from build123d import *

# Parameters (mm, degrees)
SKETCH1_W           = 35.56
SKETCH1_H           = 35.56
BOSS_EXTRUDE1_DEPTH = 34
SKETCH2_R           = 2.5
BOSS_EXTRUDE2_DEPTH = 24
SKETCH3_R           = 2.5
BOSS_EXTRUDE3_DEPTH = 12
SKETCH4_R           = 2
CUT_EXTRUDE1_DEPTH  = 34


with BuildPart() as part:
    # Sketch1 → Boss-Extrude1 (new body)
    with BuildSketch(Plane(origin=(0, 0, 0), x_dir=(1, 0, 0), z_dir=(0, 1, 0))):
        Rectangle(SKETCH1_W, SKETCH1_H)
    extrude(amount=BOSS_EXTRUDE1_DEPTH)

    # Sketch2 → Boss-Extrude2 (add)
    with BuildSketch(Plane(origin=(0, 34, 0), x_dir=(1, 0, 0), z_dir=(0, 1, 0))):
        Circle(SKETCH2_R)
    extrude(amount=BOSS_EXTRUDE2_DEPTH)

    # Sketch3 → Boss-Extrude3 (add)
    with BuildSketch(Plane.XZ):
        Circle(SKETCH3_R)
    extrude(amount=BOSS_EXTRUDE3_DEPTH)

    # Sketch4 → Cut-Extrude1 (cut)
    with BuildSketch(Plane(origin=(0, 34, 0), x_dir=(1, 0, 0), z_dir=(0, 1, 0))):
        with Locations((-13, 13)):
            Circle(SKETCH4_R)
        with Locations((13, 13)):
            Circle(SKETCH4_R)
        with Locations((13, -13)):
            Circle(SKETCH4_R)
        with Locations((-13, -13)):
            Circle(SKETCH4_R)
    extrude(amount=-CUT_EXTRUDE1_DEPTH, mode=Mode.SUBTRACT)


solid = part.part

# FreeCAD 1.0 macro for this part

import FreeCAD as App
import Part
import Sketcher


def add_polygon(sketch, points):
    """Adds a closed chain of lines whose ends are joined by coincident constraints."""
    first, n = sketch.GeometryCount, len(points)
    for a, b in zip(points, points[1:] + points[:1]):
        sketch.addGeometry(Part.LineSegment(App.Vector(*a, 0), App.Vector(*b, 0)), False)
    for i in range(n):
        sketch.addConstraint(Sketcher.Constraint("Coincident", first + i, 2, first + (i + 1) % n, 1))

doc = App.newDocument("Part")
params = doc.addObject("Spreadsheet::Sheet", "Params")
for row, (alias, value) in enumerate([
    ("sketch1_width", "35.56 mm"),
    ("pad1_length", "34 mm"),
    ("sketch2_diameter", "5 mm"),
    ("pad2_length", "24 mm"),
    ("sketch3_diameter", "5 mm"),
    ("pad3_length", "12 mm"),
    ("sketch4_diameter", "4 mm"),
    ("pocket1_length", "34 mm"),
], start=1):
    params.set(f"A{row}", alias)
    params.set(f"B{row}", "=" + value)
    params.setAlias(f"B{row}", alias)

body = doc.addObject("PartDesign::Body", "Body")

sketch1 = doc.addObject("Sketcher::SketchObject", "Sketch")
body.addObject(sketch1)
sketch1.AttachmentSupport = (doc.XZ_Plane, [""])
sketch1.MapMode = "FlatFace"
add_polygon(sketch1, [(-18, -18), (-18, 18), (18, 18), (18, -18)])
sketch1.addConstraint(Sketcher.Constraint("Vertical", 0))
sketch1.addConstraint(Sketcher.Constraint("Horizontal", 1))
sketch1.addConstraint(Sketcher.Constraint("Vertical", 2))
sketch1.addConstraint(Sketcher.Constraint("Horizontal", 3))
sketch1.addConstraint(Sketcher.Constraint("Symmetric", 0, 2, 2, 2, -1, 1))
sketch1.addConstraint(Sketcher.Constraint("Equal", 3, 0))
sketch1.addConstraint(Sketcher.Constraint("DistanceX", 1, 1, 1, 2, 35.56))
sketch1.setExpression("Constraints[10]", "Params.sketch1_width")
pad1 = doc.addObject("PartDesign::Pad", "Pad")
body.addObject(pad1)
pad1.Profile = sketch1
pad1.setExpression("Length", "Params.pad1_length")
pad1.Reversed = True

sketch2 = doc.addObject("Sketcher::SketchObject", "Sketch001")
body.addObject(sketch2)
sketch2.AttachmentSupport = (doc.XZ_Plane, [""])
sketch2.MapMode = "FlatFace"
sketch2.AttachmentOffset = App.Placement(App.Vector(0, 0, -34), App.Rotation())
sketch2.addGeometry(Part.Circle(App.Vector(0, 0, 0), App.Vector(0, 0, 1), 2.5), False)
sketch2.addConstraint(Sketcher.Constraint("Coincident", 0, 3, -1, 1))
sketch2.addConstraint(Sketcher.Constraint("Diameter", 0, 5.0))
sketch2.setExpression("Constraints[1]", "Params.sketch2_diameter")
pad2 = doc.addObject("PartDesign::Pad", "Pad001")
body.addObject(pad2)
pad2.Profile = sketch2
pad2.setExpression("Length", "Params.pad2_length")
pad2.Reversed = True

sketch3 = doc.addObject("Sketcher::SketchObject", "Sketch002")
body.addObject(sketch3)
sketch3.AttachmentSupport = (doc.XZ_Plane, [""])
sketch3.MapMode = "FlatFace"
sketch3.addGeometry(Part.Circle(App.Vector(0, 0, 0), App.Vector(0, 0, 1), 2.5), False)
sketch3.addConstraint(Sketcher.Constraint("Coincident", 0, 3, -1, 1))
sketch3.addConstraint(Sketcher.Constraint("Diameter", 0, 5.0))
sketch3.setExpression("Constraints[1]", "Params.sketch3_diameter")
pad3 = doc.addObject("PartDesign::Pad", "Pad002")
body.addObject(pad3)
pad3.Profile = sketch3
pad3.setExpression("Length", "Params.pad3_length")

sketch4 = doc.addObject("Sketcher::SketchObject", "Sketch003")
body.addObject(sketch4)
sketch4.AttachmentSupport = (doc.XZ_Plane, [""])
sketch4.MapMode = "FlatFace"
sketch4.AttachmentOffset = App.Placement(App.Vector(0, 0, -34), App.Rotation())
sketch4.addGeometry(Part.Circle(App.Vector(-13, -13, 0), App.Vector(0, 0, 1), 2), False)
sketch4.addGeometry(Part.Circle(App.Vector(13, -13, 0), App.Vector(0, 0, 1), 2), False)
sketch4.addGeometry(Part.Circle(App.Vector(13, 13, 0), App.Vector(0, 0, 1), 2), False)
sketch4.addGeometry(Part.Circle(App.Vector(-13, 13, 0), App.Vector(0, 0, 1), 2), False)
sketch4.addConstraint(Sketcher.Constraint("Equal", 0, 1))
sketch4.addConstraint(Sketcher.Constraint("Equal", 1, 2))
sketch4.addConstraint(Sketcher.Constraint("Equal", 2, 3))
sketch4.addConstraint(Sketcher.Constraint("Symmetric", 0, 3, 2, 3, -1, 1))
sketch4.addConstraint(Sketcher.Constraint("Symmetric", 1, 3, 3, 3, -1, 1))
sketch4.addConstraint(Sketcher.Constraint("Symmetric", 0, 3, 1, 3, -2))
sketch4.addConstraint(Sketcher.Constraint("Diameter", 0, 4.0))
sketch4.addConstraint(Sketcher.Constraint("DistanceX", 0, 3, -1, 1, 13.0))
sketch4.addConstraint(Sketcher.Constraint("DistanceY", 0, 3, -1, 1, 13.0))
sketch4.setExpression("Constraints[6]", "Params.sketch4_diameter")
pocket1 = doc.addObject("PartDesign::Pocket", "Pocket")
body.addObject(pocket1)
pocket1.Profile = sketch4
pocket1.setExpression("Length", "Params.pocket1_length")
pocket1.Reversed = True

doc.recompute()
